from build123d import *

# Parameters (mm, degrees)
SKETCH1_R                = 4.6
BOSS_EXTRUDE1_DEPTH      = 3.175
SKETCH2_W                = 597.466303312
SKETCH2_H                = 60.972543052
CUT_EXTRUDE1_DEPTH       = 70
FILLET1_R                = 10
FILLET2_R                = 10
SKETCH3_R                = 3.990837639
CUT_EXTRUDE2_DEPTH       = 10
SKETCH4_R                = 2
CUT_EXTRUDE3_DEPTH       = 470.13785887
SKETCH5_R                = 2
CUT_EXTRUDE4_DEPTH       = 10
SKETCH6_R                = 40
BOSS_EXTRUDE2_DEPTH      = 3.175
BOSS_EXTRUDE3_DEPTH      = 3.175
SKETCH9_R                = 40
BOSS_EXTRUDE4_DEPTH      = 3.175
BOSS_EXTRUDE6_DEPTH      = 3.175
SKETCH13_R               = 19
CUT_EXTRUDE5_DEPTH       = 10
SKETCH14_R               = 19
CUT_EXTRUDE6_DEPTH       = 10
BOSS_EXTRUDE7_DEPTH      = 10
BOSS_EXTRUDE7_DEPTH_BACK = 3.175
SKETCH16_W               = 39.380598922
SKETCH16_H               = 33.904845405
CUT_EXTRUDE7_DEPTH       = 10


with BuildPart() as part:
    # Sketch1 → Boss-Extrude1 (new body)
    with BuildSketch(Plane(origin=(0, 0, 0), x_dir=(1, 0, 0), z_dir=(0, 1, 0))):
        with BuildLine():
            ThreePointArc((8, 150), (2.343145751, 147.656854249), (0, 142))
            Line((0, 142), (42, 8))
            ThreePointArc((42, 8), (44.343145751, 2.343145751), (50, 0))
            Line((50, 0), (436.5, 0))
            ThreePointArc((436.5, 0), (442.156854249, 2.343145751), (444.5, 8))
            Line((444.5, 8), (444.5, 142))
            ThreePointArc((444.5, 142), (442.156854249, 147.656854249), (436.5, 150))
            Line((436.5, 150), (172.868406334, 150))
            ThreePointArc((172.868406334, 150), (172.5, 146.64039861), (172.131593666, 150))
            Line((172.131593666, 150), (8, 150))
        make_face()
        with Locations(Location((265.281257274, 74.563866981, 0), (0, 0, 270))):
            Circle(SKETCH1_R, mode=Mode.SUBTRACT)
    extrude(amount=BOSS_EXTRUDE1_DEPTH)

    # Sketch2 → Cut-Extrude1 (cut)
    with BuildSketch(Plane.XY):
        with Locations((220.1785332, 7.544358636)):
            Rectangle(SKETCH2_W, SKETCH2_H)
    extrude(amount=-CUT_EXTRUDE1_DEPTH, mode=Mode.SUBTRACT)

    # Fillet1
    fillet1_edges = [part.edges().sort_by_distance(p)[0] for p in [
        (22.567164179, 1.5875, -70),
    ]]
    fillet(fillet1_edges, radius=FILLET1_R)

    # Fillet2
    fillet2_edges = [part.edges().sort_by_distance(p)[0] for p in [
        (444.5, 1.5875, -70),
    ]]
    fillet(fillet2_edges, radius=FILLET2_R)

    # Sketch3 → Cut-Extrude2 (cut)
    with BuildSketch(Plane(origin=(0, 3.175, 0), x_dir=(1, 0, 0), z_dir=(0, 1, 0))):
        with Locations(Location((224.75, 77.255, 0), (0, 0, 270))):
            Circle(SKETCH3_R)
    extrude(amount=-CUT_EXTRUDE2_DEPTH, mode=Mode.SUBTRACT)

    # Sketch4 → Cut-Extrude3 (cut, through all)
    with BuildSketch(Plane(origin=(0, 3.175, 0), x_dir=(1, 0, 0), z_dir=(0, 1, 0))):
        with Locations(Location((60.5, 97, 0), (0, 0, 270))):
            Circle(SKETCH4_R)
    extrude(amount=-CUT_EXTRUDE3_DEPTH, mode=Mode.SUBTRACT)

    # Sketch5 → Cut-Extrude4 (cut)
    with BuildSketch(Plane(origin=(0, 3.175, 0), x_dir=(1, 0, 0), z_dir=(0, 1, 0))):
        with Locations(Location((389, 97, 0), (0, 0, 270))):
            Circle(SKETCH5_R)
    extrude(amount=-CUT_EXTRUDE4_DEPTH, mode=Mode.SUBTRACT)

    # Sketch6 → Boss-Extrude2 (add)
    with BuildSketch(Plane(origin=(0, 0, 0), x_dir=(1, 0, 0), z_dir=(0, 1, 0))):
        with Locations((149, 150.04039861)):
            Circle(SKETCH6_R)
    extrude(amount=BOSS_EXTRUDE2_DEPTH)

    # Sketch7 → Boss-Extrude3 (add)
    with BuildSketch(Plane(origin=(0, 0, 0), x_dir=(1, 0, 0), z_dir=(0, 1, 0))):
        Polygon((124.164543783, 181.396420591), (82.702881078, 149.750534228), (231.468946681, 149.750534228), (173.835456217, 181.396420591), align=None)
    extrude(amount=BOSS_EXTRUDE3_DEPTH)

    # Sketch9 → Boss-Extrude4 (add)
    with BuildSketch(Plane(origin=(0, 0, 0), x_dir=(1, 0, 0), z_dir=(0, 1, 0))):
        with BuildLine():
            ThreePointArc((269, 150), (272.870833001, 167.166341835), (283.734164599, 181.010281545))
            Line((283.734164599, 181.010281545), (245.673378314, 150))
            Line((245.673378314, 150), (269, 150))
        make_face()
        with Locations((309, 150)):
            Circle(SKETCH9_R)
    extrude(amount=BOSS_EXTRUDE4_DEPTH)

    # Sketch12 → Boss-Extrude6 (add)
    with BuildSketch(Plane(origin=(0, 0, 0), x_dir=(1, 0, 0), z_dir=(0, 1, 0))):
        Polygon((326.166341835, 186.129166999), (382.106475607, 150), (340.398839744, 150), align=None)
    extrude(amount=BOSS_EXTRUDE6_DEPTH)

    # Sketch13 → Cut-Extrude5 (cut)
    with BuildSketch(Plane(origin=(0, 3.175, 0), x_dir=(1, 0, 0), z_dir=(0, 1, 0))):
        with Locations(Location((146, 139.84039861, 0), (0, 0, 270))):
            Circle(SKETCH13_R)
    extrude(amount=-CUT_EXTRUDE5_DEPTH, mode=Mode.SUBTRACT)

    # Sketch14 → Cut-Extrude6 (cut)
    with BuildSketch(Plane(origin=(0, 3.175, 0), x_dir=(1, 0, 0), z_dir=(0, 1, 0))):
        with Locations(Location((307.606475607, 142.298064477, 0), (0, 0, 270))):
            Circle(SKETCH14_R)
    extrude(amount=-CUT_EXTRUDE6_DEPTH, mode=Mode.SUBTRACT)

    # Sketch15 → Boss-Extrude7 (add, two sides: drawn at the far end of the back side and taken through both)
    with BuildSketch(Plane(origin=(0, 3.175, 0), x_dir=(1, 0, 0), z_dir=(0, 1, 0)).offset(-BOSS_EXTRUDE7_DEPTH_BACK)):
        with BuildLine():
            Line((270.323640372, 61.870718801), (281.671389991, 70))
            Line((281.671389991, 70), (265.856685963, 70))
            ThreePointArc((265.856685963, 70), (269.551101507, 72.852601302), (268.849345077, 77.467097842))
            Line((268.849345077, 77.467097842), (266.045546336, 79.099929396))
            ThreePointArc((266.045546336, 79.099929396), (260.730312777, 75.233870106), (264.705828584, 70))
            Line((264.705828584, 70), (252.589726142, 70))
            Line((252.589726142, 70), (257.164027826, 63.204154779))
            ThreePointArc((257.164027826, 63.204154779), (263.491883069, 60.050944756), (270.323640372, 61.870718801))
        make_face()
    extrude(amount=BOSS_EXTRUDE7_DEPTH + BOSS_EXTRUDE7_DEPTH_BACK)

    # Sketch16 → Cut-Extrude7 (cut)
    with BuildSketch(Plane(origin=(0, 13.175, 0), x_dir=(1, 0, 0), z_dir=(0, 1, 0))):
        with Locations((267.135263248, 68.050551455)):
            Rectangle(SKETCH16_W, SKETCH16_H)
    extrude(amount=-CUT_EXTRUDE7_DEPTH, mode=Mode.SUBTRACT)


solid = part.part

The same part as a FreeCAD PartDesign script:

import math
import FreeCAD as App
import Part
import Sketcher
from FreeCAD import Vector
Q = App.Units.Quantity


def edges_at(feature, points):
    """Names of the edges that pass closest to the given points."""
    edges = feature.Shape.Edges
    near = lambda p: min(range(len(edges)), key=lambda i: edges[i].distToShape(Part.Vertex(*p))[0])
    return sorted({f"Edge{near(p) + 1}" for p in points})


def add_polygon(sketch, points):
    """Adds a closed chain of lines whose ends are joined by coincident constraints."""
    first, n = sketch.GeometryCount, len(points)
    for a, b in zip(points, points[1:] + points[:1]):
        sketch.addGeometry(Part.LineSegment(App.Vector(*a, 0), App.Vector(*b, 0)), False)
    for i in range(n):
        sketch.addConstraint(Sketcher.Constraint("Coincident", first + i, 2, first + (i + 1) % n, 1))

doc = App.newDocument("Part")
params = doc.addObject("Spreadsheet::Sheet", "Params")
for row, (alias, value) in enumerate([
    ("sketch1_radius", "8 mm"),
    ("sketch1_diameter", "9.2 mm"),
    ("sketch1_radius2", "1.7 mm"),
    ("sketch1_height", "134 mm"),
    ("sketch1_width", "386.5 mm"),
    ("pad1_length", "3.175 mm"),
    ("pocket1_length", "70 mm"),
    ("fillet_radius", "10 mm"),
    ("fillet2_radius", "10 mm"),
    ("pocket2_length", "10 mm"),
    ("sketch4_diameter", "4 mm"),
    ("sketch5_diameter", "4 mm"),
    ("pocket4_length", "10 mm"),
    ("sketch6_diameter", "80 mm"),
    ("pad2_length", "3.175 mm"),
    ("pad3_length", "3.175 mm"),
    ("sketch8_radius", "40 mm"),
    ("pad4_length", "3.175 mm"),
    ("pad5_length", "3.175 mm"),
    ("sketch10_diameter", "38 mm"),
    ("pocket5_length", "10 mm"),
    ("sketch11_diameter", "38 mm"),
    ("pocket6_length", "10 mm"),
    ("sketch12_radius", "10 mm"),
    ("sketch12_radius2", "4.6 mm"),
    ("pad6_length", "10 mm"),
    ("pad6_length2", "3.175 mm"),
    ("pocket7_length", "10 mm"),
], start=1):
    params.set(f"A{row}", alias)
    params.set(f"B{row}", "=" + value)
    params.setAlias(f"B{row}", alias)

body = doc.addObject("PartDesign::Body", "Body")

sketch1 = body.newObject("Sketcher::SketchObject", "Sketch")
sketch1.AttachmentSupport = (doc.getObject("XZ_Plane"), [""])
sketch1.MapMode = "FlatFace"
sketch1.addGeometry([
    Part.ArcOfCircle(Part.Circle(Vector(8, -142, 0), Vector(0, 0, 1), 8), math.radians(-180), math.radians(-90)),
    Part.LineSegment(Vector(0, -142, 0), Vector(42, -8, 0)),
    Part.ArcOfCircle(Part.Circle(Vector(50, -8, 0), Vector(0, 0, 1), 8), math.radians(90), math.radians(180)),
    Part.LineSegment(Vector(50, 0, 0), Vector(436.5, 0, 0)),
    Part.ArcOfCircle(Part.Circle(Vector(436.5, -8, 0), Vector(0, 0, 1), 8), math.radians(0), math.radians(90)),
    Part.LineSegment(Vector(444.5, -8, 0), Vector(444.5, -142, 0)),
    Part.ArcOfCircle(Part.Circle(Vector(436.5, -142, 0), Vector(0, 0, 1), 8), math.radians(-90), math.radians(0)),
    Part.LineSegment(Vector(436.5, -150, 0), Vector(172.868406, -150, 0)),
    Part.ArcOfCircle(Part.Circle(Vector(172.5, -148.340399, 0), Vector(0, 0, 1), 1.7), math.radians(-77.484154), math.radians(257.484154)),
    Part.LineSegment(Vector(172.131594, -150, 0), Vector(8, -150, 0)),
    Part.Circle(Vector(265.281257, -74.563867, 0), Vector(0, 0, 1), 4.6),
], False)
sketch1.addConstraint([
    Sketcher.Constraint("Coincident", 0, 1, 1, 1),
    Sketcher.Constraint("Coincident", 1, 2, 2, 2),
    Sketcher.Constraint("Tangent", 2, 1, 3, 1),
    Sketcher.Constraint("Tangent", 3, 2, 4, 2),
    Sketcher.Constraint("Tangent", 4, 1, 5, 1),
    Sketcher.Constraint("Tangent", 5, 2, 6, 2),
    Sketcher.Constraint("Tangent", 6, 1, 7, 1),
    Sketcher.Constraint("Coincident", 7, 2, 8, 1),
    Sketcher.Constraint("Coincident", 8, 2, 9, 1),
    Sketcher.Constraint("Tangent", 9, 2, 0, 2),
    Sketcher.Constraint("Horizontal", 3),
    Sketcher.Constraint("Vertical", 5),
    Sketcher.Constraint("Horizontal", 7),
    Sketcher.Constraint("Horizontal", 9),
    Sketcher.Constraint("Equal", 0, 2),
    Sketcher.Constraint("Equal", 2, 4),
    Sketcher.Constraint("Equal", 4, 6),
    Sketcher.Constraint("PointOnObject", 0, 1, -2),
    Sketcher.Constraint("PointOnObject", 2, 1, -1),
    Sketcher.Constraint("Horizontal", 0, 3, 6, 3),
    Sketcher.Constraint("Horizontal", 6, 3, 0, 1),
    Sketcher.Constraint("Horizontal", 4, 3, 1, 2),
    Sketcher.Constraint("Radius", 0, Q("8 mm")),
    Sketcher.Constraint("Diameter", 10, Q("9.2 mm")),
    Sketcher.Constraint("Radius", 8, Q("1.7 mm")),
    Sketcher.Constraint("DistanceY", 5, 2, 5, 1, Q("134 mm")),
    Sketcher.Constraint("DistanceX", 3, 1, 3, 2, Q("386.5 mm")),
    Sketcher.Constraint("DistanceX", -1, 1, 2, 3, Q("50 mm")),
    Sketcher.Constraint("DistanceX", 8, 3, 6, 3, Q("264 mm")),
    Sketcher.Constraint("DistanceY", 8, 3, -1, 1, Q("148.340399 mm")),
    Sketcher.Constraint("DistanceY", 8, 3, 10, 3, Q("73.776532 mm")),
    Sketcher.Constraint("DistanceX", 7, 2, 10, 3, Q("92.412851 mm")),
])
sketch1.setExpression("Constraints[22]", "Params.sketch1_radius")
sketch1.setExpression("Constraints[23]", "Params.sketch1_diameter")
sketch1.setExpression("Constraints[24]", "Params.sketch1_radius2")
sketch1.setExpression("Constraints[25]", "Params.sketch1_height")
sketch1.setExpression("Constraints[26]", "Params.sketch1_width")
pad1 = body.newObject("PartDesign::Pad", "Pad")
pad1.Profile = sketch1
pad1.setExpression("Length", "Params.pad1_length")
pad1.Reversed = True

sketch2 = body.newObject("Sketcher::SketchObject", "Sketch001")
sketch2.AttachmentSupport = (doc.getObject("XY_Plane"), [""])
sketch2.MapMode = "FlatFace"
add_polygon(sketch2, [(-78.554618, 38.03063), (-78.554618, -22.941913), (518.911685, -22.941913), (518.911685, 38.03063)])
sketch2.addConstraint([
    Sketcher.Constraint("Vertical", 0),
    Sketcher.Constraint("Horizontal", 1),
    Sketcher.Constraint("Vertical", 2),
    Sketcher.Constraint("Horizontal", 3),
    Sketcher.Constraint("DistanceX", 1, 1, 1, 2, Q("597.466303 mm")),
    Sketcher.Constraint("DistanceY", 0, 2, 0, 1, Q("60.972543 mm")),
    Sketcher.Constraint("DistanceX", 0, 2, -1, 1, Q("78.554618 mm")),
    Sketcher.Constraint("DistanceY", -1, 1, 2, 2, Q("38.03063 mm")),
])
pocket1 = body.newObject("PartDesign::Pocket", "Pocket")
pocket1.Profile = sketch2
pocket1.setExpression("Length", "Params.pocket1_length")
doc.recompute()

fillet = body.newObject("PartDesign::Fillet", "Fillet")
fillet.Base = (pocket1, edges_at(pocket1, [(22.567, 1.587, -70)]))
fillet.setExpression("Radius", "Params.fillet_radius")
doc.recompute()

fillet2 = body.newObject("PartDesign::Fillet", "Fillet001")
fillet2.Base = (fillet, edges_at(fillet, [(444.5, 1.587, -70)]))
fillet2.setExpression("Radius", "Params.fillet2_radius")

sketch3 = body.newObject("Sketcher::SketchObject", "Sketch002")
sketch3.AttachmentSupport = (doc.getObject("XZ_Plane"), [""])
sketch3.MapMode = "FlatFace"
sketch3.AttachmentOffset = App.Placement(Vector(0, 0, -3.175), App.Rotation())
sketch3.addGeometry(Part.Circle(Vector(224.75, -77.255, 0), Vector(0, 0, 1), 3.990838), False)
sketch3.addConstraint([
    Sketcher.Constraint("DistanceX", -1, 1, 0, 3, Q("224.75 mm")),
    Sketcher.Constraint("Diameter", 0, Q("7.981675 mm")),
    Sketcher.Constraint("DistanceY", 0, 3, -1, 1, Q("77.255 mm")),
])
pocket2 = body.newObject("PartDesign::Pocket", "Pocket001")
pocket2.Profile = sketch3
pocket2.setExpression("Length", "Params.pocket2_length")
pocket2.Reversed = True

sketch4 = body.newObject("Sketcher::SketchObject", "Sketch003")
sketch4.AttachmentSupport = (doc.getObject("XZ_Plane"), [""])
sketch4.MapMode = "FlatFace"
sketch4.AttachmentOffset = App.Placement(Vector(0, 0, -3.175), App.Rotation())
sketch4.addGeometry(Part.Circle(Vector(60.5, -97, 0), Vector(0, 0, 1), 2), False)
sketch4.addConstraint([
    Sketcher.Constraint("Diameter", 0, Q("4 mm")),
    Sketcher.Constraint("DistanceY", 0, 3, -1, 1, Q("97 mm")),
    Sketcher.Constraint("DistanceX", -1, 1, 0, 3, Q("60.5 mm")),
])
sketch4.setExpression("Constraints[0]", "Params.sketch4_diameter")
pocket3 = body.newObject("PartDesign::Pocket", "Pocket002")
pocket3.Profile = sketch4
pocket3.Type = "ThroughAll"
pocket3.Reversed = True

sketch5 = body.newObject("Sketcher::SketchObject", "Sketch004")
sketch5.AttachmentSupport = (doc.getObject("XZ_Plane"), [""])
sketch5.MapMode = "FlatFace"
sketch5.AttachmentOffset = App.Placement(Vector(0, 0, -3.175), App.Rotation())
sketch5.addGeometry(Part.Circle(Vector(389, -97, 0), Vector(0, 0, 1), 2), False)
sketch5.addConstraint([
    Sketcher.Constraint("Diameter", 0, Q("4 mm")),
    Sketcher.Constraint("DistanceX", -1, 1, 0, 3, Q("389 mm")),
    Sketcher.Constraint("DistanceY", 0, 3, -1, 1, Q("97 mm")),
])
sketch5.setExpression("Constraints[0]", "Params.sketch5_diameter")
pocket4 = body.newObject("PartDesign::Pocket", "Pocket003")
pocket4.Profile = sketch5
pocket4.setExpression("Length", "Params.pocket4_length")
pocket4.Reversed = True

sketch6 = body.newObject("Sketcher::SketchObject", "Sketch005")
sketch6.AttachmentSupport = (doc.getObject("XZ_Plane"), [""])
sketch6.MapMode = "FlatFace"
sketch6.addGeometry(Part.Circle(Vector(149, -150.040399, 0), Vector(0, 0, 1), 40), False)
sketch6.addConstraint([
    Sketcher.Constraint("Diameter", 0, Q("80 mm")),
    Sketcher.Constraint("DistanceX", -1, 1, 0, 3, Q("149 mm")),
    Sketcher.Constraint("DistanceY", 0, 3, -1, 1, Q("150.040399 mm")),
])
sketch6.setExpression("Constraints[0]", "Params.sketch6_diameter")
pad2 = body.newObject("PartDesign::Pad", "Pad001")
pad2.Profile = sketch6
pad2.setExpression("Length", "Params.pad2_length")
pad2.Reversed = True

sketch7 = body.newObject("Sketcher::SketchObject", "Sketch006")
sketch7.AttachmentSupport = (doc.getObject("XZ_Plane"), [""])
sketch7.MapMode = "FlatFace"
add_polygon(sketch7, [(124.164544, -181.396421), (82.702881, -149.750534), (231.468947, -149.750534), (173.835456, -181.396421)])
sketch7.addConstraint([
    Sketcher.Constraint("Horizontal", 1),
    Sketcher.Constraint("Horizontal", 3),
    Sketcher.Constraint("DistanceX", 1, 1, 1, 2, Q("148.766066 mm")),
    Sketcher.Constraint("DistanceX", 3, 2, 3, 1, Q("49.670912 mm")),
    Sketcher.Constraint("DistanceX", -1, 1, 0, 2, Q("82.702881 mm")),
    Sketcher.Constraint("DistanceY", 2, 2, -1, 1, Q("181.396421 mm")),
    Sketcher.Constraint("DistanceX", 2, 2, 1, 2, Q("57.63349 mm")),
    Sketcher.Constraint("Distance", 0, Q("52.158715 mm")),
])
pad3 = body.newObject("PartDesign::Pad", "Pad002")
pad3.Profile = sketch7
pad3.setExpression("Length", "Params.pad3_length")
pad3.Reversed = True

sketch8 = body.newObject("Sketcher::SketchObject", "Sketch007")
sketch8.AttachmentSupport = (doc.getObject("XZ_Plane"), [""])
sketch8.MapMode = "FlatFace"
sketch8.addGeometry([
    Part.LineSegment(Vector(283.734165, -181.010282, 0), Vector(245.673378, -150, 0)),
    Part.LineSegment(Vector(245.673378, -150, 0), Vector(269, -150, 0)),
    Part.ArcOfCircle(Part.Circle(Vector(309, -150, 0), Vector(0, 0, 1), 40), math.radians(-129.171658), math.radians(180)),
], False)
sketch8.addConstraint([
    Sketcher.Constraint("Coincident", 0, 2, 1, 1),
    Sketcher.Constraint("Coincident", 1, 2, 2, 2),
    Sketcher.Constraint("Tangent", 2, 1, 0, 1),
    Sketcher.Constraint("Horizontal", 1),
    Sketcher.Constraint("Horizontal", 2, 3, 0, 2),
    Sketcher.Constraint("Radius", 2, Q("40 mm")),
    Sketcher.Constraint("DistanceX", -1, 1, 2, 3, Q("309 mm")),
    Sketcher.Constraint("DistanceY", 2, 3, -1, 1, Q("150 mm")),
    Sketcher.Constraint("DistanceX", 1, 1, 1, 2, Q("23.326622 mm")),
])
sketch8.setExpression("Constraints[5]", "Params.sketch8_radius")
pad4 = body.newObject("PartDesign::Pad", "Pad003")
pad4.Profile = sketch8
pad4.setExpression("Length", "Params.pad4_length")
pad4.Reversed = True

sketch9 = body.newObject("Sketcher::SketchObject", "Sketch008")
sketch9.AttachmentSupport = (doc.getObject("XZ_Plane"), [""])
sketch9.MapMode = "FlatFace"
add_polygon(sketch9, [(382.106476, -150), (326.166342, -186.129167), (340.39884, -150)])
sketch9.addConstraint([
    Sketcher.Constraint("Horizontal", 2),
    Sketcher.Constraint("DistanceY", 1, 2, -1, 1, Q("150 mm")),
    Sketcher.Constraint("Distance", 1, Q("38.83144 mm")),
    Sketcher.Constraint("DistanceX", 2, 1, 2, 2, Q("41.707636 mm")),
    Sketcher.Constraint("DistanceX", -1, 1, 0, 2, Q("326.166342 mm")),
    Sketcher.Constraint("DistanceX", -1, 1, 1, 2, Q("340.39884 mm")),
])
pad5 = body.newObject("PartDesign::Pad", "Pad004")
pad5.Profile = sketch9
pad5.setExpression("Length", "Params.pad5_length")
pad5.Reversed = True

sketch10 = body.newObject("Sketcher::SketchObject", "Sketch009")
sketch10.AttachmentSupport = (doc.getObject("XZ_Plane"), [""])
sketch10.MapMode = "FlatFace"
sketch10.AttachmentOffset = App.Placement(Vector(0, 0, -3.175), App.Rotation())
sketch10.addGeometry(Part.Circle(Vector(146, -139.840399, 0), Vector(0, 0, 1), 19), False)
sketch10.addConstraint([
    Sketcher.Constraint("Diameter", 0, Q("38 mm")),
    Sketcher.Constraint("DistanceX", -1, 1, 0, 3, Q("146 mm")),
    Sketcher.Constraint("DistanceY", 0, 3, -1, 1, Q("139.840399 mm")),
])
sketch10.setExpression("Constraints[0]", "Params.sketch10_diameter")
pocket5 = body.newObject("PartDesign::Pocket", "Pocket004")
pocket5.Profile = sketch10
pocket5.setExpression("Length", "Params.pocket5_length")
pocket5.Reversed = True

sketch11 = body.newObject("Sketcher::SketchObject", "Sketch010")
sketch11.AttachmentSupport = (doc.getObject("XZ_Plane"), [""])
sketch11.MapMode = "FlatFace"
sketch11.AttachmentOffset = App.Placement(Vector(0, 0, -3.175), App.Rotation())
sketch11.addGeometry(Part.Circle(Vector(307.606476, -142.298064, 0), Vector(0, 0, 1), 19), False)
sketch11.addConstraint([
    Sketcher.Constraint("Diameter", 0, Q("38 mm")),
    Sketcher.Constraint("DistanceX", -1, 1, 0, 3, Q("307.606476 mm")),
    Sketcher.Constraint("DistanceY", 0, 3, -1, 1, Q("142.298064 mm")),
])
sketch11.setExpression("Constraints[0]", "Params.sketch11_diameter")
pocket6 = body.newObject("PartDesign::Pocket", "Pocket005")
pocket6.Profile = sketch11
pocket6.setExpression("Length", "Params.pocket6_length")
pocket6.Reversed = True

sketch12 = body.newObject("Sketcher::SketchObject", "Sketch011")
sketch12.AttachmentSupport = (doc.getObject("XZ_Plane"), [""])
sketch12.MapMode = "FlatFace"
sketch12.AttachmentOffset = App.Placement(Vector(0, 0, -3.175), App.Rotation())
sketch12.addGeometry([
    Part.LineSegment(Vector(270.32364, -61.870719, 0), Vector(281.67139, -70, 0)),
    Part.LineSegment(Vector(281.67139, -70, 0), Vector(265.856686, -70, 0)),
    Part.ArcOfCircle(Part.Circle(Vector(265.281257, -74.563867, 0), Vector(0, 0, 1), 4.6), math.radians(-39.134069), math.radians(82.813862)),
    Part.LineSegment(Vector(268.849345, -77.467098, 0), Vector(266.045546, -79.099929, 0)),
    Part.ArcOfCircle(Part.Circle(Vector(265.281257, -74.563867, 0), Vector(0, 0, 1), 4.6), math.radians(97.186138), math.radians(279.564035)),
    Part.LineSegment(Vector(264.705829, -70, 0), Vector(252.589726, -70, 0)),
    Part.LineSegment(Vector(252.589726, -70, 0), Vector(257.164028, -63.204155, 0)),
    Part.ArcOfCircle(Part.Circle(Vector(264.5, -70, 0), Vector(0, 0, 1), 10), math.radians(54.383011), math.radians(137.188815)),
], False)
sketch12.addConstraint([
    Sketcher.Constraint("Coincident", 0, 2, 1, 1),
    Sketcher.Constraint("Coincident", 1, 2, 2, 2),
    Sketcher.Constraint("Coincident", 2, 1, 3, 1),
    Sketcher.Constraint("Coincident", 3, 2, 4, 2),
    Sketcher.Constraint("Coincident", 4, 1, 5, 1),
    Sketcher.Constraint("Coincident", 5, 2, 6, 1),
    Sketcher.Constraint("Coincident", 6, 2, 7, 2),
    Sketcher.Constraint("Tangent", 7, 1, 0, 1),
    Sketcher.Constraint("Horizontal", 1),
    Sketcher.Constraint("Horizontal", 5),
    Sketcher.Constraint("Coincident", 4, 3, 2, 3),
    Sketcher.Constraint("Equal", 2, 4),
    Sketcher.Constraint("Horizontal", 7, 3, 0, 2),
    Sketcher.Constraint("Horizontal", 1, 2, 4, 1),
    Sketcher.Constraint("Radius", 7, Q("10 mm")),
    Sketcher.Constraint("Radius", 2, Q("4.6 mm")),
    Sketcher.Constraint("DistanceY", 7, 3, -1, 1, Q("70 mm")),
    Sketcher.Constraint("DistanceX", -1, 1, 7, 3, Q("264.5 mm")),
    Sketcher.Constraint("Distance", 3, Q("3.2446 mm")),
    Sketcher.Constraint("DistanceX", 3, 2, 2, 1, Q("2.803799 mm")),
    Sketcher.Constraint("DistanceX", 5, 2, 6, 2, Q("4.574302 mm")),
    Sketcher.Constraint("DistanceX", 6, 2, 4, 1, Q("7.541801 mm")),
    Sketcher.Constraint("Distance", 6, Q("8.191932 mm")),
    Sketcher.Constraint("DistanceX", 1, 2, 1, 1, Q("15.814704 mm")),
    Sketcher.Constraint("DistanceX", -1, 1, 0, 2, Q("281.67139 mm")),
])
sketch12.setExpression("Constraints[14]", "Params.sketch12_radius")
sketch12.setExpression("Constraints[15]", "Params.sketch12_radius2")
pad6 = body.newObject("PartDesign::Pad", "Pad005")
pad6.Profile = sketch12
pad6.Type = "TwoLengths"
pad6.setExpression("Length", "Params.pad6_length")
pad6.setExpression("Length2", "Params.pad6_length2")
pad6.Reversed = True

sketch13 = body.newObject("Sketcher::SketchObject", "Sketch012")
sketch13.AttachmentSupport = (doc.getObject("XZ_Plane"), [""])
sketch13.MapMode = "FlatFace"
sketch13.AttachmentOffset = App.Placement(Vector(0, 0, -13.175), App.Rotation())
add_polygon(sketch13, [(247.444964, -85.002974), (247.444964, -51.098129), (286.825563, -51.098129), (286.825563, -85.002974)])
sketch13.addConstraint([
    Sketcher.Constraint("Vertical", 0),
    Sketcher.Constraint("Horizontal", 1),
    Sketcher.Constraint("Vertical", 2),
    Sketcher.Constraint("Horizontal", 3),
    Sketcher.Constraint("DistanceX", 1, 1, 1, 2, Q("39.380599 mm")),
    Sketcher.Constraint("DistanceY", 0, 1, 0, 2, Q("33.904845 mm")),
    Sketcher.Constraint("DistanceY", 0, 2, -1, 1, Q("51.098129 mm")),
    Sketcher.Constraint("DistanceX", -1, 1, 0, 2, Q("247.444964 mm")),
])
pocket7 = body.newObject("PartDesign::Pocket", "Pocket006")
pocket7.Profile = sketch13
pocket7.setExpression("Length", "Params.pocket7_length")
pocket7.Reversed = True

doc.recompute()
